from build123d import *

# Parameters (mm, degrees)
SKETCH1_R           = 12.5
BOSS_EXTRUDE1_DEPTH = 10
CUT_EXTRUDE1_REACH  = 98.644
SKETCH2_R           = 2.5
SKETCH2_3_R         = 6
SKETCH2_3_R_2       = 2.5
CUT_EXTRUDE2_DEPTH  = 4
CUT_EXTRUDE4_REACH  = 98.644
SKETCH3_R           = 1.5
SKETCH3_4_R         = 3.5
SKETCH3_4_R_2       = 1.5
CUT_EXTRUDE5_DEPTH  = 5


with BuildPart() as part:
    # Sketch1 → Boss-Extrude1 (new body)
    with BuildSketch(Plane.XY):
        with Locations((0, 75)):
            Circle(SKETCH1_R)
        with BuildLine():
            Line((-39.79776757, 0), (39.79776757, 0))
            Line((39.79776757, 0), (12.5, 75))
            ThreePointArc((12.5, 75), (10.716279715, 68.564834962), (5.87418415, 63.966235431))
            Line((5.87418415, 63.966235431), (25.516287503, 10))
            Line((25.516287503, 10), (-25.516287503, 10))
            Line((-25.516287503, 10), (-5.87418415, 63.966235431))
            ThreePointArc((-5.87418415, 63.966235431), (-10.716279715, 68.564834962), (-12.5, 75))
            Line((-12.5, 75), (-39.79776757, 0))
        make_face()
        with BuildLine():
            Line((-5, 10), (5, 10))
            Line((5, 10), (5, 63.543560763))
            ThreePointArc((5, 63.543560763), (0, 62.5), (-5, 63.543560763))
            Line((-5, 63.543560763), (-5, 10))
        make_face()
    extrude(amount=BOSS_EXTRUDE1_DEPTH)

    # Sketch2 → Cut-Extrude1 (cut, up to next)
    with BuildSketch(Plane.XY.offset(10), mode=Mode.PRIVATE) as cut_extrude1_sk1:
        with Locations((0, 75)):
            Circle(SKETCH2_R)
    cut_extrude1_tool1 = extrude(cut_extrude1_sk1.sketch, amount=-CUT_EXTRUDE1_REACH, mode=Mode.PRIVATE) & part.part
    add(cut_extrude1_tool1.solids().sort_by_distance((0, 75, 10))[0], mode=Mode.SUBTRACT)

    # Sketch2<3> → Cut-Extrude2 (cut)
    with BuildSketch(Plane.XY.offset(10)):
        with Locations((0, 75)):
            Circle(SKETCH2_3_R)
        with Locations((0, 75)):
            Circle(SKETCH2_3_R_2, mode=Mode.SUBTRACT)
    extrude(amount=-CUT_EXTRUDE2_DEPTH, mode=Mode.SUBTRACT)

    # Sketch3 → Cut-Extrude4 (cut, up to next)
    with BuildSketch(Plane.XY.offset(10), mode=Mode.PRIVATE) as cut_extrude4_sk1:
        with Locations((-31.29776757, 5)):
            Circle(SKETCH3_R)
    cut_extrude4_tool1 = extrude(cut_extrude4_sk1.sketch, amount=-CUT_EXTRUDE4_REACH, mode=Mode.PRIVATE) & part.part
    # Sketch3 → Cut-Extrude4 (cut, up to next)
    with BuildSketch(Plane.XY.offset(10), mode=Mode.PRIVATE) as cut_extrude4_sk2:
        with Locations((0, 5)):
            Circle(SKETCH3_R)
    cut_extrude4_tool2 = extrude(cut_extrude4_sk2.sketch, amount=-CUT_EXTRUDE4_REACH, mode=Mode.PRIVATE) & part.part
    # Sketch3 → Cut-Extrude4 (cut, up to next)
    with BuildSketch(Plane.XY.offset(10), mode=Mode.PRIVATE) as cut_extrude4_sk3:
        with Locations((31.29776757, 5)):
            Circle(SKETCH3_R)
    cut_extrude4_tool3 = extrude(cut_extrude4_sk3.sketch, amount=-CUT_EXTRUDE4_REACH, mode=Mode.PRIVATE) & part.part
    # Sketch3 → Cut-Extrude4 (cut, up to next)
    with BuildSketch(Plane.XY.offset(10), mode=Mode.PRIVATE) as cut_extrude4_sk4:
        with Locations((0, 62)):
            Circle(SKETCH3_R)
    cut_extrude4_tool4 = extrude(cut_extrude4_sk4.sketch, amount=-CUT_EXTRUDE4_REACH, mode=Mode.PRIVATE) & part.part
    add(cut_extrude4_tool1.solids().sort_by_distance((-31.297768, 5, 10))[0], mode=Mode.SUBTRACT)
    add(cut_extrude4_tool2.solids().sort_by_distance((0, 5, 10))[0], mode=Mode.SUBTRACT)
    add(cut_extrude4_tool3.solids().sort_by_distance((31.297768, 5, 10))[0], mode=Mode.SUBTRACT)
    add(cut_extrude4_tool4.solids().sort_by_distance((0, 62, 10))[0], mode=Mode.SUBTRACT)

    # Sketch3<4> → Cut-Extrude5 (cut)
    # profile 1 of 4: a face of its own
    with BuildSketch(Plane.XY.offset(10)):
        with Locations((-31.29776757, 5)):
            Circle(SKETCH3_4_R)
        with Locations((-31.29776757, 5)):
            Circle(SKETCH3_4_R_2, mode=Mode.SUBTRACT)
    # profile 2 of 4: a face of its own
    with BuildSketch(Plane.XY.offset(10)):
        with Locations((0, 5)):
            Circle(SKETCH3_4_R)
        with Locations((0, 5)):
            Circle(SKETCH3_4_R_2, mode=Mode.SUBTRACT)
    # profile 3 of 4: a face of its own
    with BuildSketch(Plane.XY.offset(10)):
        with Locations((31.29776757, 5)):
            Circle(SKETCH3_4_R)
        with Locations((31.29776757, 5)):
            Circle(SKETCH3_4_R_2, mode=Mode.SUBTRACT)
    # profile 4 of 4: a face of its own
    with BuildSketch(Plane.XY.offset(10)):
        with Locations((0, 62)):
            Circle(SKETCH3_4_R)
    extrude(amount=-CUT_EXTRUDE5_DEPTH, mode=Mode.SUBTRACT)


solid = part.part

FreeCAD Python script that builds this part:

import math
import FreeCAD as App
import Part
import Sketcher
from FreeCAD import Vector
Q = App.Units.Quantity

doc = App.newDocument("Part")
body = doc.addObject("PartDesign::Body", "Body")

# Sketch on XY plane
sketch1 = body.newObject("Sketcher::SketchObject", "Sketch")
sketch1.AttachmentSupport = (doc.getObject("XY_Plane"), [""])
sketch1.MapMode = "FlatFace"
sketch1.addGeometry(Part.ArcOfCircle(Part.Circle(Vector(0, 75, 0), Vector(0, 0, 1), 12.5), math.radians(0), math.radians(180)), False)
sketch1.addGeometry(Part.LineSegment(Vector(-12.5, 75, 0), Vector(-39.8, 0, 0)), False)
sketch1.addGeometry(Part.LineSegment(Vector(-39.8, 0, 0), Vector(39.8, 0, 0)), False)
sketch1.addGeometry(Part.LineSegment(Vector(39.8, 0, 0), Vector(12.5, 75, 0)), False)
sketch1.addGeometry(Part.ArcOfCircle(Part.Circle(Vector(0, 75, 0), Vector(0, 0, 1), 12.5), math.radians(-118.03), math.radians(-113.58)), False)
sketch1.addGeometry(Part.LineSegment(Vector(-5, 63.5, 0), Vector(-5, 10, 0)), False)
sketch1.addGeometry(Part.LineSegment(Vector(-5, 10, 0), Vector(-25.5, 10, 0)), False)
sketch1.addGeometry(Part.LineSegment(Vector(-25.5, 10, 0), Vector(-5.9, 64, 0)), False)
sketch1.addGeometry(Part.ArcOfCircle(Part.Circle(Vector(0, 75, 0), Vector(0, 0, 1), 12.5), math.radians(-66.42), math.radians(-61.97)), False)
sketch1.addGeometry(Part.LineSegment(Vector(5.9, 64, 0), Vector(25.5, 10, 0)), False)
sketch1.addGeometry(Part.LineSegment(Vector(25.5, 10, 0), Vector(5, 10, 0)), False)
sketch1.addGeometry(Part.LineSegment(Vector(5, 10, 0), Vector(5, 63.5, 0)), False)
sketch1.addConstraint(Sketcher.Constraint("Coincident", 0, 2, 1, 1))
sketch1.addConstraint(Sketcher.Constraint("Coincident", 1, 2, 2, 1))
sketch1.addConstraint(Sketcher.Constraint("Coincident", 2, 2, 3, 1))
sketch1.addConstraint(Sketcher.Constraint("Coincident", 3, 2, 0, 1))
sketch1.addConstraint(Sketcher.Constraint("Coincident", 4, 2, 5, 1))
sketch1.addConstraint(Sketcher.Constraint("Coincident", 5, 2, 6, 1))
sketch1.addConstraint(Sketcher.Constraint("Coincident", 6, 2, 7, 1))
sketch1.addConstraint(Sketcher.Constraint("Coincident", 7, 2, 4, 1))
sketch1.addConstraint(Sketcher.Constraint("Coincident", 8, 2, 9, 1))
sketch1.addConstraint(Sketcher.Constraint("Coincident", 9, 2, 10, 1))
sketch1.addConstraint(Sketcher.Constraint("Coincident", 10, 2, 11, 1))
sketch1.addConstraint(Sketcher.Constraint("Coincident", 11, 2, 8, 1))
sketch1.addConstraint(Sketcher.Constraint("Horizontal", 2))
sketch1.addConstraint(Sketcher.Constraint("Vertical", 5))
sketch1.addConstraint(Sketcher.Constraint("Horizontal", 6))
sketch1.addConstraint(Sketcher.Constraint("Horizontal", 10))
sketch1.addConstraint(Sketcher.Constraint("Vertical", 11))
sketch1.addConstraint(Sketcher.Constraint("Coincident", 4, 3, 0, 3))
sketch1.addConstraint(Sketcher.Constraint("Coincident", 8, 3, 0, 3))
sketch1.addConstraint(Sketcher.Constraint("Equal", 0, 4))
sketch1.addConstraint(Sketcher.Constraint("Equal", 4, 8))
sketch1.addConstraint(Sketcher.Constraint("Symmetric", 1, 2, 2, 2, -1, 1))
sketch1.addConstraint(Sketcher.Constraint("Symmetric", 0, 2, 3, 2, -2))
sketch1.addConstraint(Sketcher.Constraint("Symmetric", 6, 2, 9, 2, -2))
sketch1.addConstraint(Sketcher.Constraint("Parallel", 1, 7))
sketch1.addConstraint(Sketcher.Constraint("Parallel", 3, 9))
sketch1.addConstraint(Sketcher.Constraint("Horizontal", 8, 3, 0, 2))
sketch1.addConstraint(Sketcher.Constraint("Horizontal", 4, 2, 11, 2))
sketch1.addConstraint(Sketcher.Constraint("Radius", 0, 12.5))
sketch1.addConstraint(Sketcher.Constraint("Angle", 1, Q("-110 deg")))
sketch1.addConstraint(Sketcher.Constraint("DistanceY", -1, 1, 0, 3, 75.0))
sketch1.addConstraint(Sketcher.Constraint("DistanceX", 4, 2, -1, 1, 5.0))
sketch1.addConstraint(Sketcher.Constraint("DistanceY", -1, 1, 5, 2, 10.0))
sketch1.addConstraint(Sketcher.Constraint("Distance", 7, 57.429668))
pad1 = body.newObject("PartDesign::Pad", "Pad")
pad1.Profile = sketch1
pad1.Length = 10

# Sketch on XY plane
sketch2 = body.newObject("Sketcher::SketchObject", "Sketch001")
sketch2.AttachmentSupport = (doc.getObject("XY_Plane"), [""])
sketch2.MapMode = "FlatFace"
sketch2.AttachmentOffset = App.Placement(Vector(0, 0, 10), App.Rotation())
sketch2.addGeometry(Part.Circle(Vector(0, 75, 0), Vector(0, 0, 1), 2.5), False)
sketch2.addConstraint(Sketcher.Constraint("PointOnObject", 0, 3, -2))
sketch2.addConstraint(Sketcher.Constraint("Diameter", 0, 5.0))
sketch2.addConstraint(Sketcher.Constraint("DistanceY", -1, 1, 0, 3, 75.0))
pocket1 = body.newObject("PartDesign::Pocket", "Pocket")
pocket1.Profile = sketch2
pocket1.Type = "UpToFirst"

# Sketch on XY plane
sketch3 = body.newObject("Sketcher::SketchObject", "Sketch002")
sketch3.AttachmentSupport = (doc.getObject("XY_Plane"), [""])
sketch3.MapMode = "FlatFace"
sketch3.AttachmentOffset = App.Placement(Vector(0, 0, 10), App.Rotation())
sketch3.addGeometry(Part.Circle(Vector(0, 75, 0), Vector(0, 0, 1), 6), False)
sketch3.addGeometry(Part.Circle(Vector(0, 75, 0), Vector(0, 0, 1), 2.5), False)
sketch3.addConstraint(Sketcher.Constraint("Coincident", 1, 3, 0, 3))
sketch3.addConstraint(Sketcher.Constraint("PointOnObject", 0, 3, -2))
sketch3.addConstraint(Sketcher.Constraint("Diameter", 0, 12.0))
sketch3.addConstraint(Sketcher.Constraint("Diameter", 1, 5.0))
sketch3.addConstraint(Sketcher.Constraint("DistanceY", -1, 1, 0, 3, 75.0))
pocket2 = body.newObject("PartDesign::Pocket", "Pocket001")
pocket2.Profile = sketch3
pocket2.Length = 4

# Sketch on XY plane
sketch4 = body.newObject("Sketcher::SketchObject", "Sketch003")
sketch4.AttachmentSupport = (doc.getObject("XY_Plane"), [""])
sketch4.MapMode = "FlatFace"
sketch4.AttachmentOffset = App.Placement(Vector(0, 0, 10), App.Rotation())
sketch4.addGeometry(Part.Circle(Vector(-31.3, 5, 0), Vector(0, 0, 1), 1.5), False)
sketch4.addConstraint(Sketcher.Constraint("Diameter", 0, 3.0))
sketch4.addConstraint(Sketcher.Constraint("DistanceY", -1, 1, 0, 3, 5.0))
sketch4.addConstraint(Sketcher.Constraint("DistanceX", 0, 3, -1, 1, 31.297768))
pocket3 = body.newObject("PartDesign::Pocket", "Pocket002")
pocket3.Profile = sketch4
pocket3.Type = "UpToFirst"

# Sketch on XY plane
sketch5 = body.newObject("Sketcher::SketchObject", "Sketch004")
sketch5.AttachmentSupport = (doc.getObject("XY_Plane"), [""])
sketch5.MapMode = "FlatFace"
sketch5.AttachmentOffset = App.Placement(Vector(0, 0, 10), App.Rotation())
sketch5.addGeometry(Part.Circle(Vector(0, 5, 0), Vector(0, 0, 1), 1.5), False)
sketch5.addConstraint(Sketcher.Constraint("PointOnObject", 0, 3, -2))
sketch5.addConstraint(Sketcher.Constraint("Diameter", 0, 3.0))
sketch5.addConstraint(Sketcher.Constraint("DistanceY", -1, 1, 0, 3, 5.0))
pocket4 = body.newObject("PartDesign::Pocket", "Pocket003")
pocket4.Profile = sketch5
pocket4.Type = "UpToFirst"

# Sketch on XY plane
sketch6 = body.newObject("Sketcher::SketchObject", "Sketch005")
sketch6.AttachmentSupport = (doc.getObject("XY_Plane"), [""])
sketch6.MapMode = "FlatFace"
sketch6.AttachmentOffset = App.Placement(Vector(0, 0, 10), App.Rotation())
sketch6.addGeometry(Part.Circle(Vector(31.3, 5, 0), Vector(0, 0, 1), 1.5), False)
sketch6.addConstraint(Sketcher.Constraint("Diameter", 0, 3.0))
sketch6.addConstraint(Sketcher.Constraint("DistanceY", -1, 1, 0, 3, 5.0))
sketch6.addConstraint(Sketcher.Constraint("DistanceX", -1, 1, 0, 3, 31.297768))
pocket5 = body.newObject("PartDesign::Pocket", "Pocket004")
pocket5.Profile = sketch6
pocket5.Type = "UpToFirst"

# Sketch on XY plane
sketch7 = body.newObject("Sketcher::SketchObject", "Sketch006")
sketch7.AttachmentSupport = (doc.getObject("XY_Plane"), [""])
sketch7.MapMode = "FlatFace"
sketch7.AttachmentOffset = App.Placement(Vector(0, 0, 10), App.Rotation())
sketch7.addGeometry(Part.Circle(Vector(0, 62, 0), Vector(0, 0, 1), 1.5), False)
sketch7.addConstraint(Sketcher.Constraint("PointOnObject", 0, 3, -2))
sketch7.addConstraint(Sketcher.Constraint("Diameter", 0, 3.0))
sketch7.addConstraint(Sketcher.Constraint("DistanceY", -1, 1, 0, 3, 62.0))
pocket6 = body.newObject("PartDesign::Pocket", "Pocket005")
pocket6.Profile = sketch7
pocket6.Type = "UpToFirst"

# Sketch on XY plane
sketch8 = body.newObject("Sketcher::SketchObject", "Sketch007")
sketch8.AttachmentSupport = (doc.getObject("XY_Plane"), [""])
sketch8.MapMode = "FlatFace"
sketch8.AttachmentOffset = App.Placement(Vector(0, 0, 10), App.Rotation())
sketch8.addGeometry(Part.Circle(Vector(-31.3, 5, 0), Vector(0, 0, 1), 3.5), False)
sketch8.addGeometry(Part.Circle(Vector(-31.3, 5, 0), Vector(0, 0, 1), 1.5), False)
sketch8.addGeometry(Part.Circle(Vector(0, 5, 0), Vector(0, 0, 1), 3.5), False)
sketch8.addGeometry(Part.Circle(Vector(0, 5, 0), Vector(0, 0, 1), 1.5), False)
sketch8.addGeometry(Part.Circle(Vector(31.3, 5, 0), Vector(0, 0, 1), 3.5), False)
sketch8.addGeometry(Part.Circle(Vector(31.3, 5, 0), Vector(0, 0, 1), 1.5), False)
sketch8.addGeometry(Part.Circle(Vector(0, 62, 0), Vector(0, 0, 1), 3.5), False)
sketch8.addConstraint(Sketcher.Constraint("Coincident", 1, 3, 0, 3))
sketch8.addConstraint(Sketcher.Constraint("Coincident", 3, 3, 2, 3))
sketch8.addConstraint(Sketcher.Constraint("Coincident", 5, 3, 4, 3))
sketch8.addConstraint(Sketcher.Constraint("Equal", 0, 2))
sketch8.addConstraint(Sketcher.Constraint("Equal", 1, 3))
sketch8.addConstraint(Sketcher.Constraint("Equal", 2, 4))
sketch8.addConstraint(Sketcher.Constraint("Equal", 3, 5))
sketch8.addConstraint(Sketcher.Constraint("Equal", 4, 6))
sketch8.addConstraint(Sketcher.Constraint("Symmetric", 0, 3, 4, 3, -2))
sketch8.addConstraint(Sketcher.Constraint("PointOnObject", 2, 3, -2))
sketch8.addConstraint(Sketcher.Constraint("PointOnObject", 6, 3, -2))
sketch8.addConstraint(Sketcher.Constraint("Horizontal", 1, 3, 2, 3))
sketch8.addConstraint(Sketcher.Constraint("Diameter", 0, 7.0))
sketch8.addConstraint(Sketcher.Constraint("Diameter", 1, 3.0))
sketch8.addConstraint(Sketcher.Constraint("DistanceY", -1, 1, 0, 3, 5.0))
sketch8.addConstraint(Sketcher.Constraint("DistanceY", -1, 1, 6, 3, 62.0))
sketch8.addConstraint(Sketcher.Constraint("DistanceX", 0, 3, -1, 1, 31.297768))
pocket7 = body.newObject("PartDesign::Pocket", "Pocket006")
pocket7.Profile = sketch8
pocket7.Length = 5

doc.recompute()
